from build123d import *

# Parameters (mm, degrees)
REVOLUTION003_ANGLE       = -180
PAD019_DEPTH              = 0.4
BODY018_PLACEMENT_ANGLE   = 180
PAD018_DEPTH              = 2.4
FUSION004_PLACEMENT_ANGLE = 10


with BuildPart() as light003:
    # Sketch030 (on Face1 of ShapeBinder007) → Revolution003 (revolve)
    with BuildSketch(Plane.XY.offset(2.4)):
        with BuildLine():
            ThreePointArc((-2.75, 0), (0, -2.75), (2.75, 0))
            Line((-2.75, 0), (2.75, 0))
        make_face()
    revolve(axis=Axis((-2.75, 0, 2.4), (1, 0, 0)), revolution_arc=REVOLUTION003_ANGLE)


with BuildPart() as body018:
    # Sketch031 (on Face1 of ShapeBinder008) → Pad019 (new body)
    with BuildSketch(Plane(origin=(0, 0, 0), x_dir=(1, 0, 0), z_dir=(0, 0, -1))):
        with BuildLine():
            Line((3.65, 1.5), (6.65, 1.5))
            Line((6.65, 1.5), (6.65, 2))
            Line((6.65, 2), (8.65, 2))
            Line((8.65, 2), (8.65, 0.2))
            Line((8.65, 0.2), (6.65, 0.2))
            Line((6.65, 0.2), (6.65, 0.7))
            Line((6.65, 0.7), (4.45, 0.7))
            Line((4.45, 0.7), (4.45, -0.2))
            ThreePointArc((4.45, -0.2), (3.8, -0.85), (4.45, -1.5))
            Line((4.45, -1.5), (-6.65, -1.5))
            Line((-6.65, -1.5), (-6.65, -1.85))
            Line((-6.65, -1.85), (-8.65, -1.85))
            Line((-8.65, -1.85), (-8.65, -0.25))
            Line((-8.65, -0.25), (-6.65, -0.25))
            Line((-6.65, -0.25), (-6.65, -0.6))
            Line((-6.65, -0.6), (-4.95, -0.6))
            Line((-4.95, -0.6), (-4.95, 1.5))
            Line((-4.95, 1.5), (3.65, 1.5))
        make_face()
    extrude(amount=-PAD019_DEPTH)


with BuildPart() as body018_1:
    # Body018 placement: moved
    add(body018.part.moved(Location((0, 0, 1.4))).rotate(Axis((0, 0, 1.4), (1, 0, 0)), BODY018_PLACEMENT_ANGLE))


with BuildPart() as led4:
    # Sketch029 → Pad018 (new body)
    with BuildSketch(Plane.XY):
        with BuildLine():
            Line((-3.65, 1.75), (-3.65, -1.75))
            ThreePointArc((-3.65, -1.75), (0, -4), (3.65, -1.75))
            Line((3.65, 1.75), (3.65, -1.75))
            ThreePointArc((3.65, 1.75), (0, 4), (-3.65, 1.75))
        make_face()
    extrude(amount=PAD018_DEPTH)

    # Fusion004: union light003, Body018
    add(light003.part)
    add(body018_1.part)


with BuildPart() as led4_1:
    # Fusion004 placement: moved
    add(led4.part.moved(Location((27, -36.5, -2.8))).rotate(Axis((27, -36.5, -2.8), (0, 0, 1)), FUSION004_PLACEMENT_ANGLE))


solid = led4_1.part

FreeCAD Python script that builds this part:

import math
import FreeCAD as App
import Part
import Sketcher
from FreeCAD import Vector
Q = App.Units.Quantity

doc = App.newDocument("Part")
body = doc.addObject("PartDesign::Body", "Body")

sketch1 = body.newObject("Sketcher::SketchObject", "Sketch")
sketch1.AttachmentSupport = (doc.getObject("XY_Plane"), [""])
sketch1.MapMode = "FlatFace"
sketch1.AttachmentOffset = App.Placement(Vector(0, 0, 2.4), App.Rotation())
sketch1.addGeometry(Part.ArcOfCircle(Part.Circle(Vector(0, 0, 0), Vector(0, 0, 1), 2.8), math.radians(180), math.radians(360)), False)
sketch1.addGeometry(Part.LineSegment(Vector(2.8, 0, 0), Vector(-2.8, 0, 0)), False)
sketch1.addConstraint(Sketcher.Constraint("Coincident", 0, 1, 1, 2))
sketch1.addConstraint(Sketcher.Constraint("Coincident", 1, 1, 0, 2))
sketch1.addConstraint(Sketcher.Constraint("Horizontal", 1))
sketch1.addConstraint(Sketcher.Constraint("Coincident", 0, 3, -1, 1))
sketch1.addConstraint(Sketcher.Constraint("PointOnObject", 0, 1, -1))
sketch1.addConstraint(Sketcher.Constraint("Radius", 0, Q("2.75 mm")))
revolution = body.newObject("PartDesign::Revolution", "Revolution")
revolution.Profile = sketch1
revolution.ReferenceAxis = (sketch1, ["H_Axis"])
revolution.Angle = 180
revolution.Reversed = True
body2 = doc.addObject("PartDesign::Body", "Body001")

sketch2 = body2.newObject("Sketcher::SketchObject", "Sketch001")
sketch2.AttachmentSupport = (doc.getObject("XY_Plane001"), [""])
sketch2.MapMode = "FlatFace"
sketch2.addGeometry(Part.LineSegment(Vector(6.65, -2, 0), Vector(6.65, -1.5, 0)), False)
sketch2.addGeometry(Part.LineSegment(Vector(6.65, -1.5, 0), Vector(-4.95, -1.5, 0)), False)
sketch2.addGeometry(Part.LineSegment(Vector(-4.95, -1.5, 0), Vector(-4.95, 0.6, 0)), False)
sketch2.addGeometry(Part.LineSegment(Vector(-4.95, 0.6, 0), Vector(-6.65, 0.6, 0)), False)
sketch2.addGeometry(Part.LineSegment(Vector(-6.65, 0.6, 0), Vector(-6.65, 0.25, 0)), False)
sketch2.addGeometry(Part.LineSegment(Vector(-6.65, 0.25, 0), Vector(-8.65, 0.25, 0)), False)
sketch2.addGeometry(Part.LineSegment(Vector(-8.65, 0.25, 0), Vector(-8.65, 1.85, 0)), False)
sketch2.addGeometry(Part.LineSegment(Vector(-8.65, 1.85, 0), Vector(-6.65, 1.85, 0)), False)
sketch2.addGeometry(Part.LineSegment(Vector(-6.65, 1.85, 0), Vector(-6.65, 1.5, 0)), False)
sketch2.addGeometry(Part.LineSegment(Vector(-6.65, 1.5, 0), Vector(4.45, 1.5, 0)), False)
sketch2.addGeometry(Part.ArcOfCircle(Part.Circle(Vector(4.45, 0.85, 0), Vector(0, 0, 1), 0.65), math.radians(90), math.radians(270)), False)
sketch2.addGeometry(Part.LineSegment(Vector(4.45, 0.2, 0), Vector(4.45, -0.7, 0)), False)
sketch2.addGeometry(Part.LineSegment(Vector(4.45, -0.7, 0), Vector(6.65, -0.7, 0)), False)
sketch2.addGeometry(Part.LineSegment(Vector(6.65, -0.7, 0), Vector(6.65, -0.2, 0)), False)
sketch2.addGeometry(Part.LineSegment(Vector(6.65, -0.2, 0), Vector(8.65, -0.2, 0)), False)
sketch2.addGeometry(Part.LineSegment(Vector(8.65, -0.2, 0), Vector(8.65, -2, 0)), False)
sketch2.addGeometry(Part.LineSegment(Vector(8.65, -2, 0), Vector(6.65, -2, 0)), False)
sketch2.addConstraint(Sketcher.Constraint("Coincident", 0, 2, 1, 1))
sketch2.addConstraint(Sketcher.Constraint("Coincident", 1, 2, 2, 1))
sketch2.addConstraint(Sketcher.Constraint("Coincident", 2, 2, 3, 1))
sketch2.addConstraint(Sketcher.Constraint("Coincident", 3, 2, 4, 1))
sketch2.addConstraint(Sketcher.Constraint("Coincident", 4, 2, 5, 1))
sketch2.addConstraint(Sketcher.Constraint("Coincident", 5, 2, 6, 1))
sketch2.addConstraint(Sketcher.Constraint("Coincident", 6, 2, 7, 1))
sketch2.addConstraint(Sketcher.Constraint("Coincident", 7, 2, 8, 1))
sketch2.addConstraint(Sketcher.Constraint("Coincident", 8, 2, 9, 1))
sketch2.addConstraint(Sketcher.Constraint("Tangent", 9, 2, 10, 1))
sketch2.addConstraint(Sketcher.Constraint("Coincident", 10, 2, 11, 1))
sketch2.addConstraint(Sketcher.Constraint("Coincident", 11, 2, 12, 1))
sketch2.addConstraint(Sketcher.Constraint("Coincident", 12, 2, 13, 1))
sketch2.addConstraint(Sketcher.Constraint("Coincident", 13, 2, 14, 1))
sketch2.addConstraint(Sketcher.Constraint("Coincident", 14, 2, 15, 1))
sketch2.addConstraint(Sketcher.Constraint("Coincident", 15, 2, 16, 1))
sketch2.addConstraint(Sketcher.Constraint("Coincident", 16, 2, 0, 1))
sketch2.addConstraint(Sketcher.Constraint("Vertical", 0))
sketch2.addConstraint(Sketcher.Constraint("Horizontal", 1))
sketch2.addConstraint(Sketcher.Constraint("Vertical", 2))
sketch2.addConstraint(Sketcher.Constraint("Horizontal", 3))
sketch2.addConstraint(Sketcher.Constraint("Vertical", 4))
sketch2.addConstraint(Sketcher.Constraint("Horizontal", 5))
sketch2.addConstraint(Sketcher.Constraint("Vertical", 6))
sketch2.addConstraint(Sketcher.Constraint("Horizontal", 7))
sketch2.addConstraint(Sketcher.Constraint("Vertical", 8))
sketch2.addConstraint(Sketcher.Constraint("Horizontal", 9))
sketch2.addConstraint(Sketcher.Constraint("Vertical", 11))
sketch2.addConstraint(Sketcher.Constraint("Horizontal", 12))
sketch2.addConstraint(Sketcher.Constraint("Vertical", 13))
sketch2.addConstraint(Sketcher.Constraint("Horizontal", 14))
sketch2.addConstraint(Sketcher.Constraint("Vertical", 15))
sketch2.addConstraint(Sketcher.Constraint("Horizontal", 16))
sketch2.addConstraint(Sketcher.Constraint("Symmetric", 0, 2, 8, 2, -1, 1))
sketch2.addConstraint(Sketcher.Constraint("Vertical", 4, 2, 7, 2))
sketch2.addConstraint(Sketcher.Constraint("Vertical", 9, 2, 10, 2))
sketch2.addConstraint(Sketcher.Constraint("Vertical", 0, 2, 12, 2))
sketch2.addConstraint(Sketcher.Constraint("Equal", 7, 14))
sketch2.addConstraint(Sketcher.Constraint("Equal", 4, 8))
sketch2.addConstraint(Sketcher.Constraint("Equal", 0, 13))
sketch2.addConstraint(Sketcher.Constraint("DistanceX", 5, 2, 5, 1, Q("2 mm")))
sketch2.addConstraint(Sketcher.Constraint("Radius", 10, Q("0.65 mm")))
sketch2.addConstraint(Sketcher.Constraint("DistanceX", 1, 2, 1, 1, Q("11.6 mm")))
sketch2.addConstraint(Sketcher.Constraint("DistanceX", 3, 2, 3, 1, Q("1.7 mm")))
sketch2.addConstraint(Sketcher.Constraint("DistanceX", 9, 1, 9, 2, Q("11.1 mm")))
sketch2.addConstraint(Sketcher.Constraint("DistanceY", 0, 1, 0, 2, Q("0.5 mm")))
sketch2.addConstraint(Sketcher.Constraint("DistanceY", 2, 1, 2, 2, Q("2.1 mm")))
sketch2.addConstraint(Sketcher.Constraint("DistanceY", 6, 1, 6, 2, Q("1.6 mm")))
sketch2.addConstraint(Sketcher.Constraint("DistanceY", 11, 2, 11, 1, Q("0.9 mm")))
sketch2.addConstraint(Sketcher.Constraint("DistanceY", 15, 2, 15, 1, Q("1.8 mm")))
pad1 = body2.newObject("PartDesign::Pad", "Pad")
pad1.Profile = sketch2
pad1.Length = 0.4
body3 = doc.addObject("PartDesign::Body", "Body002")
doc.recompute()

body2.Placement = App.Placement(Vector(0, 0, 1.4), App.Rotation(Vector(1, 0, 0), 180))
boolean = body3.newObject("PartDesign::Boolean", "Boolean")
boolean.Type = "Fuse"
boolean.addObjects([body2])
body4 = doc.addObject("PartDesign::Body", "Body003")

sketch3 = body4.newObject("Sketcher::SketchObject", "Sketch002")
sketch3.AttachmentSupport = (doc.getObject("XY_Plane003"), [""])
sketch3.MapMode = "FlatFace"
sketch3.addGeometry(Part.LineSegment(Vector(-3.6, 1.8, 0), Vector(-3.6, -1.8, 0)), False)
sketch3.addGeometry(Part.ArcOfCircle(Part.Circle(Vector(0, 0.1, 0), Vector(0, 0, 1), 4.1), math.radians(-153), math.radians(-27)), False)
sketch3.addGeometry(Part.LineSegment(Vector(3.6, -1.8, 0), Vector(3.6, 1.8, 0)), False)
sketch3.addGeometry(Part.ArcOfCircle(Part.Circle(Vector(0, -0.1, 0), Vector(0, 0, 1), 4.1), math.radians(27), math.radians(153)), False)
sketch3.addConstraint(Sketcher.Constraint("Coincident", 0, 2, 1, 1))
sketch3.addConstraint(Sketcher.Constraint("Coincident", 1, 2, 2, 1))
sketch3.addConstraint(Sketcher.Constraint("Coincident", 2, 2, 3, 1))
sketch3.addConstraint(Sketcher.Constraint("Coincident", 3, 2, 0, 1))
sketch3.addConstraint(Sketcher.Constraint("Vertical", 0))
sketch3.addConstraint(Sketcher.Constraint("Vertical", 2))
sketch3.addConstraint(Sketcher.Constraint("Equal", 1, 3))
sketch3.addConstraint(Sketcher.Constraint("Symmetric", 1, 3, 3, 3, -1, 1))
sketch3.addConstraint(Sketcher.Constraint("Symmetric", 0, 2, 1, 2, -2))
sketch3.addConstraint(Sketcher.Constraint("DistanceY", 0, 2, 0, 1, Q("3.5 mm")))
sketch3.addConstraint(Sketcher.Constraint("DistanceX", 0, 2, 1, 2, Q("7.3 mm")))
sketch3.addConstraint(Sketcher.Constraint("Radius", 1, Q("4.085556 mm")))
pad2 = body4.newObject("PartDesign::Pad", "Pad001")
pad2.Profile = sketch3
pad2.Length = 2.4
doc.recompute()

boolean2 = body4.newObject("PartDesign::Boolean", "Boolean001")
boolean2.Type = "Fuse"
boolean2.addObjects([body])
doc.recompute()

boolean3 = body4.newObject("PartDesign::Boolean", "Boolean002")
boolean3.Type = "Fuse"
boolean3.addObjects([body3])
body5 = doc.addObject("PartDesign::Body", "Body004")
doc.recompute()

body4.Placement = App.Placement(Vector(27, -36.5, -2.8), App.Rotation(Vector(0, 0, 1), 10))
boolean4 = body5.newObject("PartDesign::Boolean", "Boolean003")
boolean4.Type = "Fuse"
boolean4.addObjects([body4])

doc.recompute()
